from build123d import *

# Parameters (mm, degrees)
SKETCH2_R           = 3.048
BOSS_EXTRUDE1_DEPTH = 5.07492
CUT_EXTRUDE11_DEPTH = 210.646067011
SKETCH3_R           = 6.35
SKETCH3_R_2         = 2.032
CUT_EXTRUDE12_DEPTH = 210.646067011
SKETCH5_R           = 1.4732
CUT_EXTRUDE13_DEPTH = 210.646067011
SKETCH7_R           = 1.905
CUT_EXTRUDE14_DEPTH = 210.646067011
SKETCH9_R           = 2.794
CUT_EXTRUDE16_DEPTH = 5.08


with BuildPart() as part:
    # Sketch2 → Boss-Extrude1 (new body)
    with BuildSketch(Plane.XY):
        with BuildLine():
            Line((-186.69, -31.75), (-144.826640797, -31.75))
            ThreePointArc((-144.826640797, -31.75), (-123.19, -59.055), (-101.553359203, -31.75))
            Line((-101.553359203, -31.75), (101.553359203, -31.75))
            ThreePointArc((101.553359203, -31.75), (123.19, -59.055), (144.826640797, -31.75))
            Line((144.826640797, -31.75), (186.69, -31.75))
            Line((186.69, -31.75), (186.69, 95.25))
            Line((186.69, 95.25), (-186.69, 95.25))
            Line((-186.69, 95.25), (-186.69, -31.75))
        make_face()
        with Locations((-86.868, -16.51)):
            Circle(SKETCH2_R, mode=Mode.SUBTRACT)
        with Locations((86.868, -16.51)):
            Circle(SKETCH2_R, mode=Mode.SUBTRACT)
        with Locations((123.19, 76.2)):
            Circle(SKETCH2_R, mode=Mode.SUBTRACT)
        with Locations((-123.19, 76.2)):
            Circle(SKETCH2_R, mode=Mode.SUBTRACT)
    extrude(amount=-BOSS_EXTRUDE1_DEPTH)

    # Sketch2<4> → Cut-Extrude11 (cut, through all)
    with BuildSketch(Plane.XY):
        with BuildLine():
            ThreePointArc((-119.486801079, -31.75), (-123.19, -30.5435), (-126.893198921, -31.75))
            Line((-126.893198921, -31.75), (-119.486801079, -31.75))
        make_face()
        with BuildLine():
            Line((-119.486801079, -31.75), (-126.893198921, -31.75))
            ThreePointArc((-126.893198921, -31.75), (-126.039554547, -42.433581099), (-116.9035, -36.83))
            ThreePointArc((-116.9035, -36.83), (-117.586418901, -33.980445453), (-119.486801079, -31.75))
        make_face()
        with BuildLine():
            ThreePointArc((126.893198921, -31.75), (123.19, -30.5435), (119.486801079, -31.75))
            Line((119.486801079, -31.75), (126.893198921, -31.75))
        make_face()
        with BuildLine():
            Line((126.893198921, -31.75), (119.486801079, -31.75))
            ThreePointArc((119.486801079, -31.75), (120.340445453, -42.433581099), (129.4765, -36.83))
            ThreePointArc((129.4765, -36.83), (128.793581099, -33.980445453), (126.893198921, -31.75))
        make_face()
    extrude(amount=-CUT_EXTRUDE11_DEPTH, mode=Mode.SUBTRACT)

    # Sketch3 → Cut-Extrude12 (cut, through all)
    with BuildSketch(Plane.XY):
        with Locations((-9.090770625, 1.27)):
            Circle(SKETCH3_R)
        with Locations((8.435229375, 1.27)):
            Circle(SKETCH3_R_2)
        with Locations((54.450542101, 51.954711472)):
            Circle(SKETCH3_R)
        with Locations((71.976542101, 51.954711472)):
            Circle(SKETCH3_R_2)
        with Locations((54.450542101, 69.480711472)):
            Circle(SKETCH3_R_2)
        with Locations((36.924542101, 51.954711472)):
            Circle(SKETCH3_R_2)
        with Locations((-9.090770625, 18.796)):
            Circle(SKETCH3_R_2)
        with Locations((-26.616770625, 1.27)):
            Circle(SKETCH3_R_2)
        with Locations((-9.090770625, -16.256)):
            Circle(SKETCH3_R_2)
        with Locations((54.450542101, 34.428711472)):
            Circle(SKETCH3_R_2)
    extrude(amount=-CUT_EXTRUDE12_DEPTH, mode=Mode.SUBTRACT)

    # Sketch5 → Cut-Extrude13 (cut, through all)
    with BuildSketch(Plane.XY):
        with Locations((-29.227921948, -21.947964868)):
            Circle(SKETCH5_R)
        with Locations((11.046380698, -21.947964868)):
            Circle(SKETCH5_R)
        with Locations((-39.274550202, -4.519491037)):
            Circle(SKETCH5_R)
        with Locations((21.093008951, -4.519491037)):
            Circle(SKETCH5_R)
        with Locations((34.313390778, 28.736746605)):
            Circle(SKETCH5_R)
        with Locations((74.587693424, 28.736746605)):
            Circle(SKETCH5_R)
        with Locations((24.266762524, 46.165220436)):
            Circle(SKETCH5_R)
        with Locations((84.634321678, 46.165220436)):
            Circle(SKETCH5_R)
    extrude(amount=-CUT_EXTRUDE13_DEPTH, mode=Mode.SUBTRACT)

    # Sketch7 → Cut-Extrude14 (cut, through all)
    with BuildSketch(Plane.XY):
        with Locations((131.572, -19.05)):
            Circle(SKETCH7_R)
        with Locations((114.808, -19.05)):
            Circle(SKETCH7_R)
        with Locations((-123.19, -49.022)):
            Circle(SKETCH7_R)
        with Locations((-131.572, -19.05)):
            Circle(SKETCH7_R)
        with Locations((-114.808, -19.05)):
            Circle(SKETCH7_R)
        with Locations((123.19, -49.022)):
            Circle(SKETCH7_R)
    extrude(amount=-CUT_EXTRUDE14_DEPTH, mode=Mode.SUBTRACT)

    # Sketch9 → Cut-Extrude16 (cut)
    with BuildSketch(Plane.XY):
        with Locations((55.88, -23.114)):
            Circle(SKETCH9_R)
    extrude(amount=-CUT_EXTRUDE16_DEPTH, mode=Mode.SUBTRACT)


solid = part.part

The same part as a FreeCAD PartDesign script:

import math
import FreeCAD as App
import Part
import Sketcher
from FreeCAD import Vector
Q = App.Units.Quantity

doc = App.newDocument("Part")
params = doc.addObject("Spreadsheet::Sheet", "Params")
for row, (alias, value) in enumerate([
    ("sketch1_diameter", "0.24 in"),
    ("sketch1_height", "5 in"),
    ("sketch1_width", "14.7 in"),
    ("sketch1_radius", "0.875 in"),
    ("pad1_length", "0.1998 in"),
    ("sketch2_height", "0.2 in"),
    ("sketch3_diameter", "0.5 in"),
    ("sketch3_diameter2", "0.16 in"),
    ("sketch4_diameter", "0.116 in"),
    ("sketch5_diameter", "0.15 in"),
    ("sketch6_diameter", "0.22 in"),
    ("pocket5_length", "0.2 in"),
], start=1):
    params.set(f"A{row}", alias)
    params.set(f"B{row}", "=" + value)
    params.setAlias(f"B{row}", alias)

body = doc.addObject("PartDesign::Body", "Body")

# Sketch on XY plane
sketch1 = body.newObject("Sketcher::SketchObject", "Sketch")
sketch1.AttachmentSupport = (doc.getObject("XY_Plane"), [""])
sketch1.MapMode = "FlatFace"
sketch1.addGeometry([
    Part.LineSegment(Vector(-186.7, -31.8, 0), Vector(-144.8, -31.8, 0)),  # 0
    Part.ArcOfCircle(Part.Circle(Vector(-123.2, -36.8, 0), Vector(0, 0, 1), 22.2), math.radians(167), math.radians(373)),  # 1
    Part.LineSegment(Vector(-101.6, -31.8, 0), Vector(101.6, -31.8, 0)),  # 2
    Part.ArcOfCircle(Part.Circle(Vector(123.2, -36.8, 0), Vector(0, 0, 1), 22.2), math.radians(167), math.radians(373)),  # 3
    Part.LineSegment(Vector(144.8, -31.8, 0), Vector(186.7, -31.8, 0)),  # 4
    Part.LineSegment(Vector(186.7, -31.8, 0), Vector(186.7, 95.2, 0)),  # 5
    Part.LineSegment(Vector(186.7, 95.2, 0), Vector(-186.7, 95.2, 0)),  # 6
    Part.LineSegment(Vector(-186.7, 95.2, 0), Vector(-186.7, -31.8, 0)),  # 7
    Part.Circle(Vector(-86.9, -16.5, 0), Vector(0, 0, 1), 3),  # 8
    Part.Circle(Vector(86.9, -16.5, 0), Vector(0, 0, 1), 3),  # 9
    Part.Circle(Vector(-123.2, 76.2, 0), Vector(0, 0, 1), 3),  # 10
    Part.Circle(Vector(123.2, 76.2, 0), Vector(0, 0, 1), 3),  # 11
], False)
sketch1.addConstraint([
    Sketcher.Constraint("Coincident", 0, 2, 1, 1),
    Sketcher.Constraint("Coincident", 1, 2, 2, 1),
    Sketcher.Constraint("Coincident", 2, 2, 3, 1),
    Sketcher.Constraint("Coincident", 3, 2, 4, 1),
    Sketcher.Constraint("Coincident", 4, 2, 5, 1),
    Sketcher.Constraint("Coincident", 5, 2, 6, 1),
    Sketcher.Constraint("Coincident", 6, 2, 7, 1),
    Sketcher.Constraint("Coincident", 7, 2, 0, 1),
    Sketcher.Constraint("Horizontal", 0),
    Sketcher.Constraint("Horizontal", 2),
    Sketcher.Constraint("Horizontal", 4),
    Sketcher.Constraint("Vertical", 5),
    Sketcher.Constraint("Horizontal", 6),
    Sketcher.Constraint("Vertical", 7),
    Sketcher.Constraint("Equal", 1, 3),
    Sketcher.Constraint("Equal", 8, 9),
    Sketcher.Constraint("Equal", 9, 10),
    Sketcher.Constraint("Equal", 10, 11),
    Sketcher.Constraint("Symmetric", 1, 3, 3, 3, -2),
    Sketcher.Constraint("Symmetric", 8, 3, 9, 3, -2),
    Sketcher.Constraint("Symmetric", 10, 3, 11, 3, -2),
    Sketcher.Constraint("Symmetric", 4, 2, 7, 2, -2),
    Sketcher.Constraint("Horizontal", 0, 2, 1, 2),
    Sketcher.Constraint("Vertical", 1, 3, 10, 3),
    Sketcher.Constraint("Diameter", 8, Q("0.24 in")),
    Sketcher.Constraint("DistanceY", 5, 1, 5, 2, Q("5 in")),
    Sketcher.Constraint("DistanceX", 6, 2, 6, 1, Q("14.7 in")),
    Sketcher.Constraint("DistanceY", -1, 1, 10, 3, Q("3 in")),
    Sketcher.Constraint("Radius", 1, Q("0.875 in")),
    Sketcher.Constraint("DistanceX", 1, 3, 3, 3, Q("9.7 in")),
    Sketcher.Constraint("DistanceY", 1, 3, 8, 3, Q("0.8 in")),
    Sketcher.Constraint("DistanceY", 1, 3, 0, 2, Q("0.2 in")),
    Sketcher.Constraint("DistanceY", 1, 3, -1, 1, Q("1.45 in")),
    Sketcher.Constraint("DistanceX", 8, 3, -1, 1, Q("3.42 in")),
])
sketch1.setExpression("Constraints[24]", "Params.sketch1_diameter")
sketch1.setExpression("Constraints[25]", "Params.sketch1_height")
sketch1.setExpression("Constraints[26]", "Params.sketch1_width")
sketch1.setExpression("Constraints[28]", "Params.sketch1_radius")
pad1 = body.newObject("PartDesign::Pad", "Pad")
pad1.Profile = sketch1
pad1.setExpression("Length", "Params.pad1_length")
pad1.Reversed = True

# Sketch on XY plane
sketch2 = body.newObject("Sketcher::SketchObject", "Sketch001")
sketch2.AttachmentSupport = (doc.getObject("XY_Plane"), [""])
sketch2.MapMode = "FlatFace"
sketch2.addGeometry([
    Part.ArcOfCircle(Part.Circle(Vector(-123, -37, 0), Vector(0, 0, 1), 6), math.radians(54), math.radians(126)),  # 0
    Part.ArcOfCircle(Part.Circle(Vector(-123, -37, 0), Vector(0, 0, 1), 6), math.radians(126), math.radians(360)),  # 1
    Part.ArcOfCircle(Part.Circle(Vector(-123, -37, 0), Vector(0, 0, 1), 6), math.radians(0), math.radians(54)),  # 2
    Part.ArcOfCircle(Part.Circle(Vector(123, -37, 0), Vector(0, 0, 1), 6), math.radians(54), math.radians(126)),  # 3
    Part.ArcOfCircle(Part.Circle(Vector(123, -37, 0), Vector(0, 0, 1), 6), math.radians(126), math.radians(360)),  # 4
    Part.ArcOfCircle(Part.Circle(Vector(123, -37, 0), Vector(0, 0, 1), 6), math.radians(0), math.radians(54)),  # 5
], False)
sketch2.addConstraint([
    Sketcher.Constraint("Tangent", 0, 2, 1, 1),
    Sketcher.Constraint("Tangent", 1, 2, 2, 1),
    Sketcher.Constraint("Tangent", 2, 2, 0, 1),
    Sketcher.Constraint("Tangent", 3, 2, 4, 1),
    Sketcher.Constraint("Tangent", 4, 2, 5, 1),
    Sketcher.Constraint("Tangent", 5, 2, 3, 1),
    Sketcher.Constraint("Equal", 2, 3),
    Sketcher.Constraint("Symmetric", 0, 3, 3, 3, -2),
    Sketcher.Constraint("Horizontal", 5, 3, 1, 2),
    Sketcher.Constraint("Horizontal", 0, 2, 2, 2),
    Sketcher.Constraint("Horizontal", 2, 2, 3, 2),
    Sketcher.Constraint("Horizontal", 1, 2, 4, 2),
    Sketcher.Constraint("Horizontal", 3, 2, 5, 2),
    Sketcher.Constraint("Radius", 0, Q("0.2475 in")),
    Sketcher.Constraint("DistanceX", 0, 3, 3, 3, Q("9.7 in")),
    Sketcher.Constraint("DistanceY", 0, 3, 0, 2, Q("0.2 in")),
    Sketcher.Constraint("DistanceY", 0, 3, -1, 1, Q("1.45 in")),
])
sketch2.setExpression("Constraints[15]", "Params.sketch2_height")
pocket1 = body.newObject("PartDesign::Pocket", "Pocket")
pocket1.Profile = sketch2
pocket1.Type = "ThroughAll"

# Sketch on XY plane
sketch3 = body.newObject("Sketcher::SketchObject", "Sketch002")
sketch3.AttachmentSupport = (doc.getObject("XY_Plane"), [""])
sketch3.MapMode = "FlatFace"
sketch3.addGeometry([
    Part.Circle(Vector(-9.1, 1.3, 0), Vector(0, 0, 1), 6.3),  # 0
    Part.Circle(Vector(8.4, 1.3, 0), Vector(0, 0, 1), 2),  # 1
    Part.Circle(Vector(54.5, 52, 0), Vector(0, 0, 1), 6.3),  # 2
    Part.Circle(Vector(72, 52, 0), Vector(0, 0, 1), 2),  # 3
    Part.Circle(Vector(54.5, 69.5, 0), Vector(0, 0, 1), 2),  # 4
    Part.Circle(Vector(36.9, 52, 0), Vector(0, 0, 1), 2),  # 5
    Part.Circle(Vector(-9.1, 18.8, 0), Vector(0, 0, 1), 2),  # 6
    Part.Circle(Vector(-26.6, 1.3, 0), Vector(0, 0, 1), 2),  # 7
    Part.Circle(Vector(-9.1, -16.3, 0), Vector(0, 0, 1), 2),  # 8
    Part.Circle(Vector(54.5, 34.4, 0), Vector(0, 0, 1), 2),  # 9
], False)
sketch3.addConstraint([
    Sketcher.Constraint("Equal", 0, 2),
    Sketcher.Constraint("Equal", 1, 3),
    Sketcher.Constraint("Equal", 3, 4),
    Sketcher.Constraint("Equal", 4, 5),
    Sketcher.Constraint("Equal", 5, 6),
    Sketcher.Constraint("Equal", 6, 7),
    Sketcher.Constraint("Equal", 7, 8),
    Sketcher.Constraint("Equal", 8, 9),
    Sketcher.Constraint("Horizontal", 0, 3, 1, 3),
    Sketcher.Constraint("Horizontal", 2, 3, 3, 3),
    Sketcher.Constraint("Horizontal", 3, 3, 5, 3),
    Sketcher.Constraint("Horizontal", 1, 3, 7, 3),
    Sketcher.Constraint("Vertical", 2, 3, 4, 3),
    Sketcher.Constraint("Vertical", 0, 3, 6, 3),
    Sketcher.Constraint("Vertical", 6, 3, 8, 3),
    Sketcher.Constraint("Vertical", 4, 3, 9, 3),
    Sketcher.Constraint("Diameter", 0, Q("0.5 in")),
    Sketcher.Constraint("Diameter", 1, Q("0.16 in")),
    Sketcher.Constraint("DistanceY", -1, 1, 0, 3, Q("0.05 in")),
    Sketcher.Constraint("DistanceY", -1, 1, 6, 3, Q("0.74 in")),
    Sketcher.Constraint("DistanceY", 8, 3, -1, 1, Q("0.64 in")),
    Sketcher.Constraint("DistanceX", 0, 3, 1, 3, Q("0.69 in")),
    Sketcher.Constraint("DistanceX", 2, 3, 3, 3, Q("0.69 in")),
    Sketcher.Constraint("DistanceY", 2, 3, 4, 3, Q("0.69 in")),
    Sketcher.Constraint("DistanceX", 5, 3, 2, 3, Q("0.69 in")),
    Sketcher.Constraint("DistanceX", 7, 3, 0, 3, Q("0.69 in")),
    Sketcher.Constraint("DistanceY", 9, 3, 2, 3, Q("0.69 in")),
    Sketcher.Constraint("DistanceX", 0, 3, -1, 1, 9.090771),
    Sketcher.Constraint("DistanceY", -1, 1, 2, 3, 51.954711),
    Sketcher.Constraint("DistanceX", -1, 1, 2, 3, 54.450542),
])
sketch3.setExpression("Constraints[16]", "Params.sketch3_diameter")
sketch3.setExpression("Constraints[17]", "Params.sketch3_diameter2")
pocket2 = body.newObject("PartDesign::Pocket", "Pocket001")
pocket2.Profile = sketch3
pocket2.Type = "ThroughAll"

# Sketch on XY plane
sketch4 = body.newObject("Sketcher::SketchObject", "Sketch003")
sketch4.AttachmentSupport = (doc.getObject("XY_Plane"), [""])
sketch4.MapMode = "FlatFace"
sketch4.addGeometry([
    Part.Circle(Vector(-29.2, -21.9, 0), Vector(0, 0, 1), 1.5),  # 0
    Part.Circle(Vector(11, -21.9, 0), Vector(0, 0, 1), 1.5),  # 1
    Part.Circle(Vector(-39.3, -4.5, 0), Vector(0, 0, 1), 1.5),  # 2
    Part.Circle(Vector(21.1, -4.5, 0), Vector(0, 0, 1), 1.5),  # 3
    Part.Circle(Vector(34.3, 28.7, 0), Vector(0, 0, 1), 1.5),  # 4
    Part.Circle(Vector(74.6, 28.7, 0), Vector(0, 0, 1), 1.5),  # 5
    Part.Circle(Vector(24.3, 46.2, 0), Vector(0, 0, 1), 1.5),  # 6
    Part.Circle(Vector(84.6, 46.2, 0), Vector(0, 0, 1), 1.5),  # 7
], False)
sketch4.addConstraint([
    Sketcher.Constraint("Equal", 0, 1),
    Sketcher.Constraint("Equal", 1, 2),
    Sketcher.Constraint("Equal", 2, 3),
    Sketcher.Constraint("Equal", 3, 4),
    Sketcher.Constraint("Equal", 4, 5),
    Sketcher.Constraint("Equal", 5, 6),
    Sketcher.Constraint("Equal", 6, 7),
    Sketcher.Constraint("Horizontal", 0, 3, 1, 3),
    Sketcher.Constraint("Horizontal", 2, 3, 3, 3),
    Sketcher.Constraint("Horizontal", 4, 3, 5, 3),
    Sketcher.Constraint("Horizontal", 6, 3, 7, 3),
    Sketcher.Constraint("Diameter", 0, Q("0.116 in")),
    Sketcher.Constraint("DistanceX", 0, 3, -1, 1, 29.227922),
    Sketcher.Constraint("DistanceX", -1, 1, 1, 3, 11.046381),
    Sketcher.Constraint("DistanceX", 2, 3, -1, 1, 39.27455),
    Sketcher.Constraint("DistanceY", 2, 3, -1, 1, 4.519491),
    Sketcher.Constraint("DistanceX", -1, 1, 3, 3, 21.093009),
    Sketcher.Constraint("DistanceX", -1, 1, 4, 3, 34.313391),
    Sketcher.Constraint("DistanceY", -1, 1, 6, 3, 46.16522),
    Sketcher.Constraint("DistanceX", -1, 1, 7, 3, 84.634322),
    Sketcher.Constraint("DistanceY", 1, 3, 4, 3, 50.684711),
    Sketcher.Constraint("DistanceX", 6, 3, 4, 3, 10.046628),
    Sketcher.Constraint("DistanceX", 6, 3, 5, 3, 50.320931),
    Sketcher.Constraint("DistanceY", 0, 3, -1, 1, 21.947965),
])
sketch4.setExpression("Constraints[11]", "Params.sketch4_diameter")
pocket3 = body.newObject("PartDesign::Pocket", "Pocket002")
pocket3.Profile = sketch4
pocket3.Type = "ThroughAll"

# Sketch on XY plane
sketch5 = body.newObject("Sketcher::SketchObject", "Sketch004")
sketch5.AttachmentSupport = (doc.getObject("XY_Plane"), [""])
sketch5.MapMode = "FlatFace"
sketch5.addGeometry([
    Part.Circle(Vector(131.6, -19.1, 0), Vector(0, 0, 1), 1.9),  # 0
    Part.Circle(Vector(114.8, -19.1, 0), Vector(0, 0, 1), 1.9),  # 1
    Part.Circle(Vector(-123.2, -49, 0), Vector(0, 0, 1), 1.9),  # 2
    Part.Circle(Vector(-131.6, -19.1, 0), Vector(0, 0, 1), 1.9),  # 3
    Part.Circle(Vector(-114.8, -19.1, 0), Vector(0, 0, 1), 1.9),  # 4
    Part.Circle(Vector(123.2, -49, 0), Vector(0, 0, 1), 1.9),  # 5
], False)
sketch5.addConstraint([
    Sketcher.Constraint("Equal", 0, 1),
    Sketcher.Constraint("Equal", 1, 2),
    Sketcher.Constraint("Equal", 2, 3),
    Sketcher.Constraint("Equal", 3, 4),
    Sketcher.Constraint("Equal", 4, 5),
    Sketcher.Constraint("Symmetric", 0, 3, 3, 3, -2),
    Sketcher.Constraint("Symmetric", 1, 3, 4, 3, -2),
    Sketcher.Constraint("Symmetric", 2, 3, 5, 3, -2),
    Sketcher.Constraint("Horizontal", 0, 3, 1, 3),
    Sketcher.Constraint("Diameter", 0, Q("0.15 in")),
    Sketcher.Constraint("DistanceX", 3, 3, 1, 3, Q("9.7 in")),
    Sketcher.Constraint("DistanceX", 2, 3, 5, 3, Q("9.7 in")),
    Sketcher.Constraint("DistanceX", -1, 1, 0, 3, Q("5.18 in")),
    Sketcher.Constraint("DistanceY", 0, 3, -1, 1, Q("0.75 in")),
    Sketcher.Constraint("DistanceY", 2, 3, -1, 1, Q("1.93 in")),
])
sketch5.setExpression("Constraints[9]", "Params.sketch5_diameter")
pocket4 = body.newObject("PartDesign::Pocket", "Pocket003")
pocket4.Profile = sketch5
pocket4.Type = "ThroughAll"

# Sketch on XY plane
sketch6 = body.newObject("Sketcher::SketchObject", "Sketch005")
sketch6.AttachmentSupport = (doc.getObject("XY_Plane"), [""])
sketch6.MapMode = "FlatFace"
sketch6.addGeometry(Part.Circle(Vector(55.9, -23.1, 0), Vector(0, 0, 1), 2.8), False)
sketch6.addConstraint([
    Sketcher.Constraint("Diameter", 0, Q("0.22 in")),
    Sketcher.Constraint("DistanceX", -1, 1, 0, 3, Q("2.2 in")),
    Sketcher.Constraint("DistanceY", 0, 3, -1, 1, Q("0.91 in")),
])
sketch6.setExpression("Constraints[0]", "Params.sketch6_diameter")
pocket5 = body.newObject("PartDesign::Pocket", "Pocket004")
pocket5.Profile = sketch6
pocket5.setExpression("Length", "Params.pocket5_length")

doc.recompute()
